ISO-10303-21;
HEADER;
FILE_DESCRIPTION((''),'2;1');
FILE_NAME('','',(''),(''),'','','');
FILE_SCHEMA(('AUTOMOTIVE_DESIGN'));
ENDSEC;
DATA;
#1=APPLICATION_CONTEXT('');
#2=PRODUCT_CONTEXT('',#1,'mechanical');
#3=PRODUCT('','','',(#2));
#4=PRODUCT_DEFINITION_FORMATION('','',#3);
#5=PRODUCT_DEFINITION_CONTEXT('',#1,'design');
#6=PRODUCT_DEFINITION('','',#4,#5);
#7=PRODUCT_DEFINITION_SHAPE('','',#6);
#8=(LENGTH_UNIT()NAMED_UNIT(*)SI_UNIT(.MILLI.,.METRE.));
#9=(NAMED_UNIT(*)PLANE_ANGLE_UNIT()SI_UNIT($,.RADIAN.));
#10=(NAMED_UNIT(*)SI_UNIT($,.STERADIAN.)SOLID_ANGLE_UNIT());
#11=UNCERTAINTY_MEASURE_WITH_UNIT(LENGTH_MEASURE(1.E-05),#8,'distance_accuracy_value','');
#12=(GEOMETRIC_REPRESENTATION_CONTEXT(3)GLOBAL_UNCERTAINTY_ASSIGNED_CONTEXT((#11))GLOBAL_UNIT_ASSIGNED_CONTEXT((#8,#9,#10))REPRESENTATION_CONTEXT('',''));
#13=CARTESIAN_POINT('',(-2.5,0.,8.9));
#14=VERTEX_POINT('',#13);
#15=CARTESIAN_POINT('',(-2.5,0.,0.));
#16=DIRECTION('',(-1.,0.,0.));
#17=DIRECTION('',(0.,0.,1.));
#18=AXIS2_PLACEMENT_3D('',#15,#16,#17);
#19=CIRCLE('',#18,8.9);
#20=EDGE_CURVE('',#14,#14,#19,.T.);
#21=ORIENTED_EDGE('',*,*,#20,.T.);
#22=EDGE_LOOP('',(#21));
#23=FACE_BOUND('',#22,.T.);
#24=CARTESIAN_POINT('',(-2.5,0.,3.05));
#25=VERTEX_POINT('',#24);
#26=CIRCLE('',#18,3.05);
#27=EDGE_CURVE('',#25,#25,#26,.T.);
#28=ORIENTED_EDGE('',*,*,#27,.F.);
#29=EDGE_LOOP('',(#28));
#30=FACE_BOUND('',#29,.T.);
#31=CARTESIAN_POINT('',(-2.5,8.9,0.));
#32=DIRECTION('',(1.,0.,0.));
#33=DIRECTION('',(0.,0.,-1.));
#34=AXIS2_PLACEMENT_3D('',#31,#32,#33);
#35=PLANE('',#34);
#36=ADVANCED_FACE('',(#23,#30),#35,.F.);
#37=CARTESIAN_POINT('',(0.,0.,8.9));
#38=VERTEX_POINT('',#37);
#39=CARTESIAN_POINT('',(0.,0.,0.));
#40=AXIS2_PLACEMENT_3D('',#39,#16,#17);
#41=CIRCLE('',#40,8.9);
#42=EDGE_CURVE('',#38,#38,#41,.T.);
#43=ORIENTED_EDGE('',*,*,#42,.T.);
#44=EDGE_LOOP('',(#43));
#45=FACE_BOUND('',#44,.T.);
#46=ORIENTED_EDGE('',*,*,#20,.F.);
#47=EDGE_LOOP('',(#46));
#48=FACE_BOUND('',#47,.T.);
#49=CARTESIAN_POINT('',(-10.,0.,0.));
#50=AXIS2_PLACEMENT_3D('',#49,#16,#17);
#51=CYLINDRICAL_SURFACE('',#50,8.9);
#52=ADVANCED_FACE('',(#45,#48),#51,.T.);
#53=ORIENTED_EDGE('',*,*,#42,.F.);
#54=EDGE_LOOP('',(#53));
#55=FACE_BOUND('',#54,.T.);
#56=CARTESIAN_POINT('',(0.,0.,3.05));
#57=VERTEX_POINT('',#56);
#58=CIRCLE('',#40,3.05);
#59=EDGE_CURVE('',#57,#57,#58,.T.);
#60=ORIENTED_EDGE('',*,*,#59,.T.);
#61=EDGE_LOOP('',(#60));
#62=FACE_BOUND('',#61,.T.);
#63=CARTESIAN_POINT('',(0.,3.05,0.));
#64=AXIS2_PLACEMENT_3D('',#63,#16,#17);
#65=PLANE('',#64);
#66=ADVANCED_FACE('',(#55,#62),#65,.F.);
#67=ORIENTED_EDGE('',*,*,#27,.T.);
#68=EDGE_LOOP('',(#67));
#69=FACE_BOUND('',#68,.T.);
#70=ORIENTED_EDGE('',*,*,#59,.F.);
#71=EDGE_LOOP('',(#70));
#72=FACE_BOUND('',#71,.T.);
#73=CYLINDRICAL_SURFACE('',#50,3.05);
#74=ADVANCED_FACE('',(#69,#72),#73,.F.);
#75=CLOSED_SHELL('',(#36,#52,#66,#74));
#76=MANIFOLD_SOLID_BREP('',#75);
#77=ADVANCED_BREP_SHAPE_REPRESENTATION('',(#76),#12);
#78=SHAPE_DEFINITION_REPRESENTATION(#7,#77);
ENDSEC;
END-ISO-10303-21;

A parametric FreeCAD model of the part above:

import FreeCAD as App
import Part
import Sketcher

V = App.Vector
Q = App.Units.Quantity


def add_polygon(sketch, points):
    """Adds a closed chain of lines whose ends are joined by coincident constraints."""
    first, n = sketch.GeometryCount, len(points)
    for a, b in zip(points, points[1:] + points[:1]):
        sketch.addGeometry(Part.LineSegment(App.Vector(*a, 0), App.Vector(*b, 0)), False)
    for i in range(n):
        sketch.addConstraint(Sketcher.Constraint("Coincident", first + i, 2, first + (i + 1) % n, 1))

doc = App.newDocument("Part")
body = doc.addObject("PartDesign::Body", "Body")

# Sketch on XY plane
sketch1 = body.newObject("Sketcher::SketchObject", "Sketch")
sketch1.AttachmentSupport = (doc.getObject("XY_Plane"), [""])
sketch1.MapMode = "FlatFace"
add_polygon(sketch1, [(-2.5, 8.9), (-2.5, 3.05), (0, 3.05), (0, 8.9)])  # lines 0-3
sketch1.addConstraint([
    Sketcher.Constraint("Vertical", 0),
    Sketcher.Constraint("Horizontal", 1),
    Sketcher.Constraint("Vertical", 2),
    Sketcher.Constraint("Horizontal", 3),
    Sketcher.Constraint("PointOnObject", 1, 2, -2),
    Sketcher.Constraint("DistanceX", 1, 1, 1, 2, Q("2.5 mm")),
    Sketcher.Constraint("DistanceY", 0, 2, 0, 1, Q("5.85 mm")),
    Sketcher.Constraint("DistanceY", -1, 1, 2, 2, Q("8.9 mm")),
])
revolution = body.newObject("PartDesign::Revolution", "Revolution")
revolution.Profile = sketch1
revolution.ReferenceAxis = (sketch1, ["H_Axis"])
revolution.Angle = 360

doc.recompute()
